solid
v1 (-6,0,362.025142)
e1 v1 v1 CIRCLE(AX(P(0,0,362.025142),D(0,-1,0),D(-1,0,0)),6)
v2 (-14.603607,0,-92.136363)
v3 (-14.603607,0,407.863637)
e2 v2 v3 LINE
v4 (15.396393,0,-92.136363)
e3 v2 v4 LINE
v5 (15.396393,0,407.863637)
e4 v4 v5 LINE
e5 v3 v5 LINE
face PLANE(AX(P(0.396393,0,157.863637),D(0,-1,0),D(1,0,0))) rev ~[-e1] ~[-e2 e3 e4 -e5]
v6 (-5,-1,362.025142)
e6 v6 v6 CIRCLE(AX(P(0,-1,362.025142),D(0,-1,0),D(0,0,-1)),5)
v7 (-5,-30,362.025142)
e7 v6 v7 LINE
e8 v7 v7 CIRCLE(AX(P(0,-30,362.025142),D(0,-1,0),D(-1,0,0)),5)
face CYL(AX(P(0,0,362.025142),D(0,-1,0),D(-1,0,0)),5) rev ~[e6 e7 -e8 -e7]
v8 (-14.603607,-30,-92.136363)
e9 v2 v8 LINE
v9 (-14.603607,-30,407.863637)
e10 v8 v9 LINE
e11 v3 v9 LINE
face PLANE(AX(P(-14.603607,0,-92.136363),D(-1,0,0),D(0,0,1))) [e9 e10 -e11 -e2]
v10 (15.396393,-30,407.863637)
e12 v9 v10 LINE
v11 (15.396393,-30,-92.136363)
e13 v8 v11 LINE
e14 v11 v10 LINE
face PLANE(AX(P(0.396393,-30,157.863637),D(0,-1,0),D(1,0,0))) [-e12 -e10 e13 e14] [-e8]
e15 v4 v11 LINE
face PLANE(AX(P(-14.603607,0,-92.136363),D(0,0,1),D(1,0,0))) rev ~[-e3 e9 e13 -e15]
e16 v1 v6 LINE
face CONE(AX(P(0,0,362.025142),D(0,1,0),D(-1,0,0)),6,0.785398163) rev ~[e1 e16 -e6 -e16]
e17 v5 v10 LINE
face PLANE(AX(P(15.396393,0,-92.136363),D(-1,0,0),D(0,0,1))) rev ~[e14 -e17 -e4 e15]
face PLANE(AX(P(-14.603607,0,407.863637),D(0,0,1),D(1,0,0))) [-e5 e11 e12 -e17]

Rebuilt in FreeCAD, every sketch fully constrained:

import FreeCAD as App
import Part
import Sketcher

V = App.Vector

doc = App.newDocument("Part")
body = doc.addObject("PartDesign::Body", "Body")

sketch1 = doc.addObject("Sketcher::SketchObject", "Sketch")
body.addObject(sketch1)
sketch1.AttachmentSupport = (doc.XZ_Plane, [""])
sketch1.MapMode = "FlatFace"
sketch1.addGeometry(Part.LineSegment(V(-14.603607, 407.863637, 0), V(-14.603607, -92.136363, 0)), False)
sketch1.addGeometry(Part.LineSegment(V(-14.603607, -92.136363, 0), V(15.396393, -92.136363, 0)), False)
sketch1.addGeometry(Part.LineSegment(V(15.396393, -92.136363, 0), V(15.396393, 407.863637, 0)), False)
sketch1.addGeometry(Part.LineSegment(V(15.396393, 407.863637, 0), V(-14.603607, 407.863637, 0)), False)
sketch1.addConstraint(Sketcher.Constraint("Coincident", 0, 2, 1, 1))
sketch1.addConstraint(Sketcher.Constraint("Coincident", 1, 2, 2, 1))
sketch1.addConstraint(Sketcher.Constraint("Coincident", 2, 2, 3, 1))
sketch1.addConstraint(Sketcher.Constraint("Coincident", 3, 2, 0, 1))
sketch1.addConstraint(Sketcher.Constraint("Vertical", 0))
sketch1.addConstraint(Sketcher.Constraint("Horizontal", 1))
sketch1.addConstraint(Sketcher.Constraint("Vertical", 2))
sketch1.addConstraint(Sketcher.Constraint("Horizontal", 3))
sketch1.addConstraint(Sketcher.Constraint("DistanceX", 1, 1, 1, 2, 30.0))
sketch1.addConstraint(Sketcher.Constraint("DistanceY", 0, 2, 0, 1, 500.0))
sketch1.addConstraint(Sketcher.Constraint("DistanceX", 0, 2, -1, 1, 14.603607))
sketch1.addConstraint(Sketcher.Constraint("DistanceY", 0, 2, -1, 1, 92.136363))
pad1 = doc.addObject("PartDesign::Pad", "Pad")
body.addObject(pad1)
pad1.Profile = sketch1
pad1.Length = 30

sketch2 = doc.addObject("Sketcher::SketchObject", "Sketch001")
body.addObject(sketch2)
sketch2.AttachmentSupport = (doc.XZ_Plane, [""])
sketch2.MapMode = "FlatFace"
sketch2.addGeometry(Part.Circle(V(0, 362.025142, 0), V(0, 0, 1), 5), False)
sketch2.addConstraint(Sketcher.Constraint("PointOnObject", 0, 3, -2))
sketch2.addConstraint(Sketcher.Constraint("Diameter", 0, 10.0))
sketch2.addConstraint(Sketcher.Constraint("DistanceY", -1, 1, 0, 3, 362.025142))
doc.recompute()
hole = doc.addObject("PartDesign::Hole", "Hole")
body.addObject(hole)
hole.Profile = sketch2
hole.ThreadType = "None"
hole.Diameter = 10
hole.DepthType = "ThroughAll"
hole.HoleCutType = "Countersink"
hole.HoleCutDiameter = 12
hole.HoleCutCountersinkAngle = 90
hole.Reversed = True

doc.recompute()
